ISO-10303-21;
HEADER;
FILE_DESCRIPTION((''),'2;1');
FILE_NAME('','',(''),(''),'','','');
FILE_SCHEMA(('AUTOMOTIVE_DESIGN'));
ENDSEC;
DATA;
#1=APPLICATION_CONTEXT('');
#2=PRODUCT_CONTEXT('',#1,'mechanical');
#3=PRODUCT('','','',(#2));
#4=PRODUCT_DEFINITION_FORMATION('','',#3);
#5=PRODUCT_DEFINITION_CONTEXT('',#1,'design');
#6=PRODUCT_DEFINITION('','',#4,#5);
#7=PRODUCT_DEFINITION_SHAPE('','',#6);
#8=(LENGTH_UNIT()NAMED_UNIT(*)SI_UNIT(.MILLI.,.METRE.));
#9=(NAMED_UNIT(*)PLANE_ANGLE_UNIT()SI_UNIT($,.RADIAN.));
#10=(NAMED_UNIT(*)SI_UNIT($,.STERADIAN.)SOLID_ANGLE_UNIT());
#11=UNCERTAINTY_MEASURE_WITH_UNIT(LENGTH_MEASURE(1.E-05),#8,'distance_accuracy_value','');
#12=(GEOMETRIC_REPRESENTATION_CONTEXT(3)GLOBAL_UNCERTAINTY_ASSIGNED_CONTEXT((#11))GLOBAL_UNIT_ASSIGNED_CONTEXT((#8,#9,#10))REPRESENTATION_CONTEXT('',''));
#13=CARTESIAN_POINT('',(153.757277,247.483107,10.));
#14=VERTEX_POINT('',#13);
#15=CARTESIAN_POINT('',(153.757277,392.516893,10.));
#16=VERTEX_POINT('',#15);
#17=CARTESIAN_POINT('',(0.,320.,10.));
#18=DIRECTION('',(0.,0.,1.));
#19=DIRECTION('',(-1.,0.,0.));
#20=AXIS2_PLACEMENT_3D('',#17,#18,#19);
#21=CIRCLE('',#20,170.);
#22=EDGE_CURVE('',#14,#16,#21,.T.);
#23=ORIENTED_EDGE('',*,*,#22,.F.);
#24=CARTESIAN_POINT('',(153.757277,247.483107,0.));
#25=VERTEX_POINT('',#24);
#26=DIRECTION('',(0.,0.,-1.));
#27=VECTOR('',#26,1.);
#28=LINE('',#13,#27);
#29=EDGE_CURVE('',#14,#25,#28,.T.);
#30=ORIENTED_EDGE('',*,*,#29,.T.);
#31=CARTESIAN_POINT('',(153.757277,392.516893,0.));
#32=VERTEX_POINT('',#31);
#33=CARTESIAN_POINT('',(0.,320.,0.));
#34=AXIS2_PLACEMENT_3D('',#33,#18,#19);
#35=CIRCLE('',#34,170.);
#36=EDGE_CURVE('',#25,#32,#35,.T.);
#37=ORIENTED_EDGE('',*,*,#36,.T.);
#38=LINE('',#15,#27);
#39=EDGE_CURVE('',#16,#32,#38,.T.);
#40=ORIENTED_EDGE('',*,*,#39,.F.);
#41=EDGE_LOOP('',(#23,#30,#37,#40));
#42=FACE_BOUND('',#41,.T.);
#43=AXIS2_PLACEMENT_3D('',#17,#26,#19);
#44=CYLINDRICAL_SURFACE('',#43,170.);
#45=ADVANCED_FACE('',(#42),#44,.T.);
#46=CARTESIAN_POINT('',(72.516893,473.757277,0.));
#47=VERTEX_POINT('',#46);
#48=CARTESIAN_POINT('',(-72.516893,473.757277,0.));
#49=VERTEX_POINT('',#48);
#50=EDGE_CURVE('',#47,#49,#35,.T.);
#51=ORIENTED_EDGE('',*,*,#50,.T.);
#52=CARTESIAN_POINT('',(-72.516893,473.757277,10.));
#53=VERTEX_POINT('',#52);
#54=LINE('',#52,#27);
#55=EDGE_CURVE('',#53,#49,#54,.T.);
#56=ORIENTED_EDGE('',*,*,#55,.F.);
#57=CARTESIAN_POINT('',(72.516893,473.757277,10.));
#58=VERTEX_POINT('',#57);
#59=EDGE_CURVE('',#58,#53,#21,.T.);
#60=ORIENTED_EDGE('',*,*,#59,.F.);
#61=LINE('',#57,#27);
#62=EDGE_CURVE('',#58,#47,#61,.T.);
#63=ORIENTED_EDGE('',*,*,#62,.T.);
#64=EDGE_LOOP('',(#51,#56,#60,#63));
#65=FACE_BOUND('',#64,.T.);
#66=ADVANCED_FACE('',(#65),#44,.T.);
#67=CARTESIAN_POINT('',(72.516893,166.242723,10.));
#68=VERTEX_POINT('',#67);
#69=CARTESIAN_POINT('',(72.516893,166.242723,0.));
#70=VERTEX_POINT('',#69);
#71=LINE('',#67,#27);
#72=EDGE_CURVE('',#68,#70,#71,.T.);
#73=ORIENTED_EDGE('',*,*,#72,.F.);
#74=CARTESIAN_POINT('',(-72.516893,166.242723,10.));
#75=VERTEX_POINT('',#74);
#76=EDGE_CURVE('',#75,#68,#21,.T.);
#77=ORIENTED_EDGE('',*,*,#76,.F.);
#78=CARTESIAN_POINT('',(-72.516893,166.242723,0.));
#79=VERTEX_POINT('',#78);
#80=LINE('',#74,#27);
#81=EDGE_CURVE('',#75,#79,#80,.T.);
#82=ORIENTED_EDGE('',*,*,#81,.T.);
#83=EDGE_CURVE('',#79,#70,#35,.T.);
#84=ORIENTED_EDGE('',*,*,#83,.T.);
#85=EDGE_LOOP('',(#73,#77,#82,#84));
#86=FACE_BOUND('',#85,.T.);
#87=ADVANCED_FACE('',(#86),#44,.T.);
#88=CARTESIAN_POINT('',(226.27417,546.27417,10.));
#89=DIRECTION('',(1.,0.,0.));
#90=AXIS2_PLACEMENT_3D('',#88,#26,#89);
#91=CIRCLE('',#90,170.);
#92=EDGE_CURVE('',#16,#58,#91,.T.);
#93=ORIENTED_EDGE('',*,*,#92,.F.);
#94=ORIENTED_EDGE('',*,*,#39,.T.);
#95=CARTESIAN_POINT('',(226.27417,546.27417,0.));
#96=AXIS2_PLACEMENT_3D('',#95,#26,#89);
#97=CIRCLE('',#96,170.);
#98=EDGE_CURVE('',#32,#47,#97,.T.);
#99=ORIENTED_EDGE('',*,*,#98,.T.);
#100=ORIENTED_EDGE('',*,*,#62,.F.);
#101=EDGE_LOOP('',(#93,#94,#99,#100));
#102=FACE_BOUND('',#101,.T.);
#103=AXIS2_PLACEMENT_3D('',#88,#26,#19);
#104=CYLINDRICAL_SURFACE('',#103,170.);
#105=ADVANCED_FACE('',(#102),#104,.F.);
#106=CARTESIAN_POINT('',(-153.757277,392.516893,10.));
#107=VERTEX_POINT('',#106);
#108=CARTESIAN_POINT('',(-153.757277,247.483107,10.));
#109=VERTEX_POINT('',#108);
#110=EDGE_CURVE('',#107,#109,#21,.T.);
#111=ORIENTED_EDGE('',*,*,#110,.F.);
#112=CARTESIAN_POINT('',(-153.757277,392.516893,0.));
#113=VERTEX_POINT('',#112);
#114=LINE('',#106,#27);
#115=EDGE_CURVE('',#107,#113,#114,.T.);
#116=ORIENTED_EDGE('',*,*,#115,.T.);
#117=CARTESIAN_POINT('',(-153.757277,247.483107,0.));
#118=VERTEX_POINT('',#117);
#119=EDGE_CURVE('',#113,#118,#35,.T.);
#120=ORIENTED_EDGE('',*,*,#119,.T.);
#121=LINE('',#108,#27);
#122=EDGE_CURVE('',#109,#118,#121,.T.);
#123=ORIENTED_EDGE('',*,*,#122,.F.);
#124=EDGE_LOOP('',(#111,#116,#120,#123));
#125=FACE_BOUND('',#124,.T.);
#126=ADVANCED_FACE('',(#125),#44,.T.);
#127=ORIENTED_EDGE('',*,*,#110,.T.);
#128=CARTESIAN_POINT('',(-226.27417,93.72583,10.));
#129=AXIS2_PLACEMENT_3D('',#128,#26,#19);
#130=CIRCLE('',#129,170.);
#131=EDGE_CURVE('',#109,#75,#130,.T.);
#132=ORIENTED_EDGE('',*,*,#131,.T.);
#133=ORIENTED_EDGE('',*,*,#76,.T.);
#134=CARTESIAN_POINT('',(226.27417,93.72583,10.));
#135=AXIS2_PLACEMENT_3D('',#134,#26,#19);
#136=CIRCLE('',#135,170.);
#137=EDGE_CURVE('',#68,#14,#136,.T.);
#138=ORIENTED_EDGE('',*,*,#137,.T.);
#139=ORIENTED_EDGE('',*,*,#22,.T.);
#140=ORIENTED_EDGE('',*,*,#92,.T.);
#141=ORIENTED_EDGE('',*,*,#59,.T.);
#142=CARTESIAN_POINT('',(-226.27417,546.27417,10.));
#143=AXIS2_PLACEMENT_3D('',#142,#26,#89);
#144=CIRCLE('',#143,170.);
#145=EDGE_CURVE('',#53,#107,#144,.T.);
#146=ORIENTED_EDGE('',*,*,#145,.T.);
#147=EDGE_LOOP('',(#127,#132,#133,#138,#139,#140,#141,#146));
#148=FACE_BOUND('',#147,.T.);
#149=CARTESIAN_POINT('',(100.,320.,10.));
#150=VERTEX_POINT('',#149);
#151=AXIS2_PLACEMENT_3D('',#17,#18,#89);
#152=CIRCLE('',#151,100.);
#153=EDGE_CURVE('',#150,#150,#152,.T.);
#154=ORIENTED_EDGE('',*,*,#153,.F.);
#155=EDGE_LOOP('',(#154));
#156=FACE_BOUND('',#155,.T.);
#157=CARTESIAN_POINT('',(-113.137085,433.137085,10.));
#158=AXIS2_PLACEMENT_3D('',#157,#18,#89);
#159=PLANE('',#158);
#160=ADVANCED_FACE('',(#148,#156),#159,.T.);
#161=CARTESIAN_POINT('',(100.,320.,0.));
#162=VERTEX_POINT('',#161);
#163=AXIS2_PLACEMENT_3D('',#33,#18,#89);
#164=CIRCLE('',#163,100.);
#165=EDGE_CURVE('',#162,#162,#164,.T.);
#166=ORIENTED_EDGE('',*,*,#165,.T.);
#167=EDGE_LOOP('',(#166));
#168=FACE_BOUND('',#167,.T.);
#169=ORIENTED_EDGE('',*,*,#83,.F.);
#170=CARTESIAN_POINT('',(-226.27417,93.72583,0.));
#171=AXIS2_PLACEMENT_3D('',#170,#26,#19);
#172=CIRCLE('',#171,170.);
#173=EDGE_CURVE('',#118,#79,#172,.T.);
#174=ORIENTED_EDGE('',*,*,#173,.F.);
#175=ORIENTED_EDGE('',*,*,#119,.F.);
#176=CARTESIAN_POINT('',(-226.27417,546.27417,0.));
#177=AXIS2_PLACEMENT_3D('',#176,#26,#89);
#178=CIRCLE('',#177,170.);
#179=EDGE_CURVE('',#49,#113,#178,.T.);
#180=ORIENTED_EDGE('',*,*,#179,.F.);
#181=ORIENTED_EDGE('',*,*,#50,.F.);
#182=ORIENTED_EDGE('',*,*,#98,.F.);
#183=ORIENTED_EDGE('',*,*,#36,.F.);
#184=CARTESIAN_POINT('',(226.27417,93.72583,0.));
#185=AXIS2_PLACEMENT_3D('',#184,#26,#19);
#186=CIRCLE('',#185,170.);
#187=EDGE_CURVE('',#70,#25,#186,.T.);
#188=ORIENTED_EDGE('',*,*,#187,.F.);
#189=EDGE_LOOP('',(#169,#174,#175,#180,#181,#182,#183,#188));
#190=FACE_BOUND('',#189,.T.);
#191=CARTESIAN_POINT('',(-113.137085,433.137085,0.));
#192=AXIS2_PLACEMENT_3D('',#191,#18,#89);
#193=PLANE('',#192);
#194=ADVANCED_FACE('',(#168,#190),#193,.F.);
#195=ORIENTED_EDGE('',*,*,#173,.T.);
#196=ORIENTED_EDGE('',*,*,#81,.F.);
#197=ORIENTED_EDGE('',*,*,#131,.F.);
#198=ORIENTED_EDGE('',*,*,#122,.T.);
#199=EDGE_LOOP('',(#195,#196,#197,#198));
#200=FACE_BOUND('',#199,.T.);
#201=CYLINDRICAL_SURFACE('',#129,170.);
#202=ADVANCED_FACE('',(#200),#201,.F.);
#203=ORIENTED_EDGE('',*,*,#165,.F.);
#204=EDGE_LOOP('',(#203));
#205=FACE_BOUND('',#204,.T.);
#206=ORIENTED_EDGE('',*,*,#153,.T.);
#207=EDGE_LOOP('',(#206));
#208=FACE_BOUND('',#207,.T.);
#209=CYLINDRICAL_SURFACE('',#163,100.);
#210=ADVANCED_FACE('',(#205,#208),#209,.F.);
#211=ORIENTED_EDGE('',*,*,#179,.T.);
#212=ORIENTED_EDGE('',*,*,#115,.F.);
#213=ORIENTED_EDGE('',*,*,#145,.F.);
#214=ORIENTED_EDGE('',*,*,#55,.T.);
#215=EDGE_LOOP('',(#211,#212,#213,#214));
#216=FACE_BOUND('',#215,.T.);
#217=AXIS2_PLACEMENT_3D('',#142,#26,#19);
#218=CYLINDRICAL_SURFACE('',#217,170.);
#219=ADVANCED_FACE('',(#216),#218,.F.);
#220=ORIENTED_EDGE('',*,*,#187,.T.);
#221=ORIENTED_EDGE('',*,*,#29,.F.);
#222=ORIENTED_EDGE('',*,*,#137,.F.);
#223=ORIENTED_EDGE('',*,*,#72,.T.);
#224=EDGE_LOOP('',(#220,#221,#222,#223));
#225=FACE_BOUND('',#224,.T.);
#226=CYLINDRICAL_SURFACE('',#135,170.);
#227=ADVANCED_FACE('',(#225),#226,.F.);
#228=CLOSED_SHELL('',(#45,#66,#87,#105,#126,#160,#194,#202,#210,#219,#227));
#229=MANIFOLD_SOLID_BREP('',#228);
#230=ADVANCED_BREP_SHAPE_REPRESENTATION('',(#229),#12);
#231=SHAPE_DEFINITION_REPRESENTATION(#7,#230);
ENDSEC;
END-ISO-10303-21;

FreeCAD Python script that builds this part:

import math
import FreeCAD as App
import Part
import Sketcher

V = App.Vector

doc = App.newDocument("Part")
body = doc.addObject("PartDesign::Body", "Body")

# Sketch on XY plane
sketch1 = doc.addObject("Sketcher::SketchObject", "Sketch")
body.addObject(sketch1)
sketch1.AttachmentSupport = (doc.XY_Plane, [""])
sketch1.MapMode = "FlatFace"
sketch1.addGeometry(Part.ArcOfCircle(Part.Circle(V(0, 320, 0), V(0, 0, 1), 170), math.radians(65), math.radians(115)), False)
sketch1.addGeometry(Part.ArcOfCircle(Part.Circle(V(-226, 546, 0), V(0, 0, 1), 170), math.radians(-65), math.radians(-25)), False)
sketch1.addGeometry(Part.ArcOfCircle(Part.Circle(V(0, 320, 0), V(0, 0, 1), 170), math.radians(155), math.radians(205)), False)
sketch1.addGeometry(Part.ArcOfCircle(Part.Circle(V(-226, 94, 0), V(0, 0, 1), 170), math.radians(25), math.radians(65)), False)
sketch1.addGeometry(Part.ArcOfCircle(Part.Circle(V(0, 320, 0), V(0, 0, 1), 170), math.radians(-115), math.radians(-65)), False)
sketch1.addGeometry(Part.ArcOfCircle(Part.Circle(V(226, 94, 0), V(0, 0, 1), 170), math.radians(115), math.radians(155)), False)
sketch1.addGeometry(Part.ArcOfCircle(Part.Circle(V(0, 320, 0), V(0, 0, 1), 170), math.radians(-25), math.radians(25)), False)
sketch1.addGeometry(Part.ArcOfCircle(Part.Circle(V(226, 546, 0), V(0, 0, 1), 170), math.radians(-155), math.radians(-115)), False)
sketch1.addConstraint(Sketcher.Constraint("Coincident", 0, 2, 1, 2))
sketch1.addConstraint(Sketcher.Constraint("Coincident", 1, 1, 2, 1))
sketch1.addConstraint(Sketcher.Constraint("Coincident", 2, 2, 3, 2))
sketch1.addConstraint(Sketcher.Constraint("Coincident", 3, 1, 4, 1))
sketch1.addConstraint(Sketcher.Constraint("Coincident", 4, 2, 5, 2))
sketch1.addConstraint(Sketcher.Constraint("Coincident", 5, 1, 6, 1))
sketch1.addConstraint(Sketcher.Constraint("Coincident", 6, 2, 7, 2))
sketch1.addConstraint(Sketcher.Constraint("Coincident", 7, 1, 0, 1))
sketch1.addConstraint(Sketcher.Constraint("Coincident", 2, 3, 0, 3))
sketch1.addConstraint(Sketcher.Constraint("Coincident", 4, 3, 0, 3))
sketch1.addConstraint(Sketcher.Constraint("Coincident", 6, 3, 0, 3))
sketch1.addConstraint(Sketcher.Constraint("Equal", 0, 1))
sketch1.addConstraint(Sketcher.Constraint("Equal", 1, 2))
sketch1.addConstraint(Sketcher.Constraint("Equal", 2, 3))
sketch1.addConstraint(Sketcher.Constraint("Equal", 3, 4))
sketch1.addConstraint(Sketcher.Constraint("Equal", 4, 5))
sketch1.addConstraint(Sketcher.Constraint("Equal", 5, 6))
sketch1.addConstraint(Sketcher.Constraint("Equal", 6, 7))
sketch1.addConstraint(Sketcher.Constraint("Symmetric", 3, 3, 5, 3, -2))
sketch1.addConstraint(Sketcher.Constraint("Symmetric", 1, 3, 7, 3, -2))
sketch1.addConstraint(Sketcher.Constraint("PointOnObject", 0, 3, -2))
sketch1.addConstraint(Sketcher.Constraint("Vertical", 1, 3, 3, 3))
sketch1.addConstraint(Sketcher.Constraint("Vertical", 1, 1, 2, 2))
sketch1.addConstraint(Sketcher.Constraint("Radius", 0, 170.0))
sketch1.addConstraint(Sketcher.Constraint("DistanceY", -1, 1, 0, 3, 320.0))
sketch1.addConstraint(Sketcher.Constraint("DistanceX", 1, 3, -1, 1, 226.27417))
sketch1.addConstraint(Sketcher.Constraint("DistanceY", -1, 1, 1, 3, 546.27417))
pad1 = doc.addObject("PartDesign::Pad", "Pad")
body.addObject(pad1)
pad1.Profile = sketch1
pad1.Length = 10

# Sketch on XY plane
sketch2 = doc.addObject("Sketcher::SketchObject", "Sketch001")
body.addObject(sketch2)
sketch2.AttachmentSupport = (doc.XY_Plane, [""])
sketch2.MapMode = "FlatFace"
sketch2.AttachmentOffset = App.Placement(V(0, 0, 10), App.Rotation())
sketch2.addGeometry(Part.Circle(V(0, 320, 0), V(0, 0, 1), 100), False)
sketch2.addConstraint(Sketcher.Constraint("PointOnObject", 0, 3, -2))
sketch2.addConstraint(Sketcher.Constraint("Diameter", 0, 200.0))
sketch2.addConstraint(Sketcher.Constraint("DistanceY", -1, 1, 0, 3, 320.0))
pocket1 = doc.addObject("PartDesign::Pocket", "Pocket")
body.addObject(pocket1)
pocket1.Profile = sketch2
pocket1.Length = 10

doc.recompute()
